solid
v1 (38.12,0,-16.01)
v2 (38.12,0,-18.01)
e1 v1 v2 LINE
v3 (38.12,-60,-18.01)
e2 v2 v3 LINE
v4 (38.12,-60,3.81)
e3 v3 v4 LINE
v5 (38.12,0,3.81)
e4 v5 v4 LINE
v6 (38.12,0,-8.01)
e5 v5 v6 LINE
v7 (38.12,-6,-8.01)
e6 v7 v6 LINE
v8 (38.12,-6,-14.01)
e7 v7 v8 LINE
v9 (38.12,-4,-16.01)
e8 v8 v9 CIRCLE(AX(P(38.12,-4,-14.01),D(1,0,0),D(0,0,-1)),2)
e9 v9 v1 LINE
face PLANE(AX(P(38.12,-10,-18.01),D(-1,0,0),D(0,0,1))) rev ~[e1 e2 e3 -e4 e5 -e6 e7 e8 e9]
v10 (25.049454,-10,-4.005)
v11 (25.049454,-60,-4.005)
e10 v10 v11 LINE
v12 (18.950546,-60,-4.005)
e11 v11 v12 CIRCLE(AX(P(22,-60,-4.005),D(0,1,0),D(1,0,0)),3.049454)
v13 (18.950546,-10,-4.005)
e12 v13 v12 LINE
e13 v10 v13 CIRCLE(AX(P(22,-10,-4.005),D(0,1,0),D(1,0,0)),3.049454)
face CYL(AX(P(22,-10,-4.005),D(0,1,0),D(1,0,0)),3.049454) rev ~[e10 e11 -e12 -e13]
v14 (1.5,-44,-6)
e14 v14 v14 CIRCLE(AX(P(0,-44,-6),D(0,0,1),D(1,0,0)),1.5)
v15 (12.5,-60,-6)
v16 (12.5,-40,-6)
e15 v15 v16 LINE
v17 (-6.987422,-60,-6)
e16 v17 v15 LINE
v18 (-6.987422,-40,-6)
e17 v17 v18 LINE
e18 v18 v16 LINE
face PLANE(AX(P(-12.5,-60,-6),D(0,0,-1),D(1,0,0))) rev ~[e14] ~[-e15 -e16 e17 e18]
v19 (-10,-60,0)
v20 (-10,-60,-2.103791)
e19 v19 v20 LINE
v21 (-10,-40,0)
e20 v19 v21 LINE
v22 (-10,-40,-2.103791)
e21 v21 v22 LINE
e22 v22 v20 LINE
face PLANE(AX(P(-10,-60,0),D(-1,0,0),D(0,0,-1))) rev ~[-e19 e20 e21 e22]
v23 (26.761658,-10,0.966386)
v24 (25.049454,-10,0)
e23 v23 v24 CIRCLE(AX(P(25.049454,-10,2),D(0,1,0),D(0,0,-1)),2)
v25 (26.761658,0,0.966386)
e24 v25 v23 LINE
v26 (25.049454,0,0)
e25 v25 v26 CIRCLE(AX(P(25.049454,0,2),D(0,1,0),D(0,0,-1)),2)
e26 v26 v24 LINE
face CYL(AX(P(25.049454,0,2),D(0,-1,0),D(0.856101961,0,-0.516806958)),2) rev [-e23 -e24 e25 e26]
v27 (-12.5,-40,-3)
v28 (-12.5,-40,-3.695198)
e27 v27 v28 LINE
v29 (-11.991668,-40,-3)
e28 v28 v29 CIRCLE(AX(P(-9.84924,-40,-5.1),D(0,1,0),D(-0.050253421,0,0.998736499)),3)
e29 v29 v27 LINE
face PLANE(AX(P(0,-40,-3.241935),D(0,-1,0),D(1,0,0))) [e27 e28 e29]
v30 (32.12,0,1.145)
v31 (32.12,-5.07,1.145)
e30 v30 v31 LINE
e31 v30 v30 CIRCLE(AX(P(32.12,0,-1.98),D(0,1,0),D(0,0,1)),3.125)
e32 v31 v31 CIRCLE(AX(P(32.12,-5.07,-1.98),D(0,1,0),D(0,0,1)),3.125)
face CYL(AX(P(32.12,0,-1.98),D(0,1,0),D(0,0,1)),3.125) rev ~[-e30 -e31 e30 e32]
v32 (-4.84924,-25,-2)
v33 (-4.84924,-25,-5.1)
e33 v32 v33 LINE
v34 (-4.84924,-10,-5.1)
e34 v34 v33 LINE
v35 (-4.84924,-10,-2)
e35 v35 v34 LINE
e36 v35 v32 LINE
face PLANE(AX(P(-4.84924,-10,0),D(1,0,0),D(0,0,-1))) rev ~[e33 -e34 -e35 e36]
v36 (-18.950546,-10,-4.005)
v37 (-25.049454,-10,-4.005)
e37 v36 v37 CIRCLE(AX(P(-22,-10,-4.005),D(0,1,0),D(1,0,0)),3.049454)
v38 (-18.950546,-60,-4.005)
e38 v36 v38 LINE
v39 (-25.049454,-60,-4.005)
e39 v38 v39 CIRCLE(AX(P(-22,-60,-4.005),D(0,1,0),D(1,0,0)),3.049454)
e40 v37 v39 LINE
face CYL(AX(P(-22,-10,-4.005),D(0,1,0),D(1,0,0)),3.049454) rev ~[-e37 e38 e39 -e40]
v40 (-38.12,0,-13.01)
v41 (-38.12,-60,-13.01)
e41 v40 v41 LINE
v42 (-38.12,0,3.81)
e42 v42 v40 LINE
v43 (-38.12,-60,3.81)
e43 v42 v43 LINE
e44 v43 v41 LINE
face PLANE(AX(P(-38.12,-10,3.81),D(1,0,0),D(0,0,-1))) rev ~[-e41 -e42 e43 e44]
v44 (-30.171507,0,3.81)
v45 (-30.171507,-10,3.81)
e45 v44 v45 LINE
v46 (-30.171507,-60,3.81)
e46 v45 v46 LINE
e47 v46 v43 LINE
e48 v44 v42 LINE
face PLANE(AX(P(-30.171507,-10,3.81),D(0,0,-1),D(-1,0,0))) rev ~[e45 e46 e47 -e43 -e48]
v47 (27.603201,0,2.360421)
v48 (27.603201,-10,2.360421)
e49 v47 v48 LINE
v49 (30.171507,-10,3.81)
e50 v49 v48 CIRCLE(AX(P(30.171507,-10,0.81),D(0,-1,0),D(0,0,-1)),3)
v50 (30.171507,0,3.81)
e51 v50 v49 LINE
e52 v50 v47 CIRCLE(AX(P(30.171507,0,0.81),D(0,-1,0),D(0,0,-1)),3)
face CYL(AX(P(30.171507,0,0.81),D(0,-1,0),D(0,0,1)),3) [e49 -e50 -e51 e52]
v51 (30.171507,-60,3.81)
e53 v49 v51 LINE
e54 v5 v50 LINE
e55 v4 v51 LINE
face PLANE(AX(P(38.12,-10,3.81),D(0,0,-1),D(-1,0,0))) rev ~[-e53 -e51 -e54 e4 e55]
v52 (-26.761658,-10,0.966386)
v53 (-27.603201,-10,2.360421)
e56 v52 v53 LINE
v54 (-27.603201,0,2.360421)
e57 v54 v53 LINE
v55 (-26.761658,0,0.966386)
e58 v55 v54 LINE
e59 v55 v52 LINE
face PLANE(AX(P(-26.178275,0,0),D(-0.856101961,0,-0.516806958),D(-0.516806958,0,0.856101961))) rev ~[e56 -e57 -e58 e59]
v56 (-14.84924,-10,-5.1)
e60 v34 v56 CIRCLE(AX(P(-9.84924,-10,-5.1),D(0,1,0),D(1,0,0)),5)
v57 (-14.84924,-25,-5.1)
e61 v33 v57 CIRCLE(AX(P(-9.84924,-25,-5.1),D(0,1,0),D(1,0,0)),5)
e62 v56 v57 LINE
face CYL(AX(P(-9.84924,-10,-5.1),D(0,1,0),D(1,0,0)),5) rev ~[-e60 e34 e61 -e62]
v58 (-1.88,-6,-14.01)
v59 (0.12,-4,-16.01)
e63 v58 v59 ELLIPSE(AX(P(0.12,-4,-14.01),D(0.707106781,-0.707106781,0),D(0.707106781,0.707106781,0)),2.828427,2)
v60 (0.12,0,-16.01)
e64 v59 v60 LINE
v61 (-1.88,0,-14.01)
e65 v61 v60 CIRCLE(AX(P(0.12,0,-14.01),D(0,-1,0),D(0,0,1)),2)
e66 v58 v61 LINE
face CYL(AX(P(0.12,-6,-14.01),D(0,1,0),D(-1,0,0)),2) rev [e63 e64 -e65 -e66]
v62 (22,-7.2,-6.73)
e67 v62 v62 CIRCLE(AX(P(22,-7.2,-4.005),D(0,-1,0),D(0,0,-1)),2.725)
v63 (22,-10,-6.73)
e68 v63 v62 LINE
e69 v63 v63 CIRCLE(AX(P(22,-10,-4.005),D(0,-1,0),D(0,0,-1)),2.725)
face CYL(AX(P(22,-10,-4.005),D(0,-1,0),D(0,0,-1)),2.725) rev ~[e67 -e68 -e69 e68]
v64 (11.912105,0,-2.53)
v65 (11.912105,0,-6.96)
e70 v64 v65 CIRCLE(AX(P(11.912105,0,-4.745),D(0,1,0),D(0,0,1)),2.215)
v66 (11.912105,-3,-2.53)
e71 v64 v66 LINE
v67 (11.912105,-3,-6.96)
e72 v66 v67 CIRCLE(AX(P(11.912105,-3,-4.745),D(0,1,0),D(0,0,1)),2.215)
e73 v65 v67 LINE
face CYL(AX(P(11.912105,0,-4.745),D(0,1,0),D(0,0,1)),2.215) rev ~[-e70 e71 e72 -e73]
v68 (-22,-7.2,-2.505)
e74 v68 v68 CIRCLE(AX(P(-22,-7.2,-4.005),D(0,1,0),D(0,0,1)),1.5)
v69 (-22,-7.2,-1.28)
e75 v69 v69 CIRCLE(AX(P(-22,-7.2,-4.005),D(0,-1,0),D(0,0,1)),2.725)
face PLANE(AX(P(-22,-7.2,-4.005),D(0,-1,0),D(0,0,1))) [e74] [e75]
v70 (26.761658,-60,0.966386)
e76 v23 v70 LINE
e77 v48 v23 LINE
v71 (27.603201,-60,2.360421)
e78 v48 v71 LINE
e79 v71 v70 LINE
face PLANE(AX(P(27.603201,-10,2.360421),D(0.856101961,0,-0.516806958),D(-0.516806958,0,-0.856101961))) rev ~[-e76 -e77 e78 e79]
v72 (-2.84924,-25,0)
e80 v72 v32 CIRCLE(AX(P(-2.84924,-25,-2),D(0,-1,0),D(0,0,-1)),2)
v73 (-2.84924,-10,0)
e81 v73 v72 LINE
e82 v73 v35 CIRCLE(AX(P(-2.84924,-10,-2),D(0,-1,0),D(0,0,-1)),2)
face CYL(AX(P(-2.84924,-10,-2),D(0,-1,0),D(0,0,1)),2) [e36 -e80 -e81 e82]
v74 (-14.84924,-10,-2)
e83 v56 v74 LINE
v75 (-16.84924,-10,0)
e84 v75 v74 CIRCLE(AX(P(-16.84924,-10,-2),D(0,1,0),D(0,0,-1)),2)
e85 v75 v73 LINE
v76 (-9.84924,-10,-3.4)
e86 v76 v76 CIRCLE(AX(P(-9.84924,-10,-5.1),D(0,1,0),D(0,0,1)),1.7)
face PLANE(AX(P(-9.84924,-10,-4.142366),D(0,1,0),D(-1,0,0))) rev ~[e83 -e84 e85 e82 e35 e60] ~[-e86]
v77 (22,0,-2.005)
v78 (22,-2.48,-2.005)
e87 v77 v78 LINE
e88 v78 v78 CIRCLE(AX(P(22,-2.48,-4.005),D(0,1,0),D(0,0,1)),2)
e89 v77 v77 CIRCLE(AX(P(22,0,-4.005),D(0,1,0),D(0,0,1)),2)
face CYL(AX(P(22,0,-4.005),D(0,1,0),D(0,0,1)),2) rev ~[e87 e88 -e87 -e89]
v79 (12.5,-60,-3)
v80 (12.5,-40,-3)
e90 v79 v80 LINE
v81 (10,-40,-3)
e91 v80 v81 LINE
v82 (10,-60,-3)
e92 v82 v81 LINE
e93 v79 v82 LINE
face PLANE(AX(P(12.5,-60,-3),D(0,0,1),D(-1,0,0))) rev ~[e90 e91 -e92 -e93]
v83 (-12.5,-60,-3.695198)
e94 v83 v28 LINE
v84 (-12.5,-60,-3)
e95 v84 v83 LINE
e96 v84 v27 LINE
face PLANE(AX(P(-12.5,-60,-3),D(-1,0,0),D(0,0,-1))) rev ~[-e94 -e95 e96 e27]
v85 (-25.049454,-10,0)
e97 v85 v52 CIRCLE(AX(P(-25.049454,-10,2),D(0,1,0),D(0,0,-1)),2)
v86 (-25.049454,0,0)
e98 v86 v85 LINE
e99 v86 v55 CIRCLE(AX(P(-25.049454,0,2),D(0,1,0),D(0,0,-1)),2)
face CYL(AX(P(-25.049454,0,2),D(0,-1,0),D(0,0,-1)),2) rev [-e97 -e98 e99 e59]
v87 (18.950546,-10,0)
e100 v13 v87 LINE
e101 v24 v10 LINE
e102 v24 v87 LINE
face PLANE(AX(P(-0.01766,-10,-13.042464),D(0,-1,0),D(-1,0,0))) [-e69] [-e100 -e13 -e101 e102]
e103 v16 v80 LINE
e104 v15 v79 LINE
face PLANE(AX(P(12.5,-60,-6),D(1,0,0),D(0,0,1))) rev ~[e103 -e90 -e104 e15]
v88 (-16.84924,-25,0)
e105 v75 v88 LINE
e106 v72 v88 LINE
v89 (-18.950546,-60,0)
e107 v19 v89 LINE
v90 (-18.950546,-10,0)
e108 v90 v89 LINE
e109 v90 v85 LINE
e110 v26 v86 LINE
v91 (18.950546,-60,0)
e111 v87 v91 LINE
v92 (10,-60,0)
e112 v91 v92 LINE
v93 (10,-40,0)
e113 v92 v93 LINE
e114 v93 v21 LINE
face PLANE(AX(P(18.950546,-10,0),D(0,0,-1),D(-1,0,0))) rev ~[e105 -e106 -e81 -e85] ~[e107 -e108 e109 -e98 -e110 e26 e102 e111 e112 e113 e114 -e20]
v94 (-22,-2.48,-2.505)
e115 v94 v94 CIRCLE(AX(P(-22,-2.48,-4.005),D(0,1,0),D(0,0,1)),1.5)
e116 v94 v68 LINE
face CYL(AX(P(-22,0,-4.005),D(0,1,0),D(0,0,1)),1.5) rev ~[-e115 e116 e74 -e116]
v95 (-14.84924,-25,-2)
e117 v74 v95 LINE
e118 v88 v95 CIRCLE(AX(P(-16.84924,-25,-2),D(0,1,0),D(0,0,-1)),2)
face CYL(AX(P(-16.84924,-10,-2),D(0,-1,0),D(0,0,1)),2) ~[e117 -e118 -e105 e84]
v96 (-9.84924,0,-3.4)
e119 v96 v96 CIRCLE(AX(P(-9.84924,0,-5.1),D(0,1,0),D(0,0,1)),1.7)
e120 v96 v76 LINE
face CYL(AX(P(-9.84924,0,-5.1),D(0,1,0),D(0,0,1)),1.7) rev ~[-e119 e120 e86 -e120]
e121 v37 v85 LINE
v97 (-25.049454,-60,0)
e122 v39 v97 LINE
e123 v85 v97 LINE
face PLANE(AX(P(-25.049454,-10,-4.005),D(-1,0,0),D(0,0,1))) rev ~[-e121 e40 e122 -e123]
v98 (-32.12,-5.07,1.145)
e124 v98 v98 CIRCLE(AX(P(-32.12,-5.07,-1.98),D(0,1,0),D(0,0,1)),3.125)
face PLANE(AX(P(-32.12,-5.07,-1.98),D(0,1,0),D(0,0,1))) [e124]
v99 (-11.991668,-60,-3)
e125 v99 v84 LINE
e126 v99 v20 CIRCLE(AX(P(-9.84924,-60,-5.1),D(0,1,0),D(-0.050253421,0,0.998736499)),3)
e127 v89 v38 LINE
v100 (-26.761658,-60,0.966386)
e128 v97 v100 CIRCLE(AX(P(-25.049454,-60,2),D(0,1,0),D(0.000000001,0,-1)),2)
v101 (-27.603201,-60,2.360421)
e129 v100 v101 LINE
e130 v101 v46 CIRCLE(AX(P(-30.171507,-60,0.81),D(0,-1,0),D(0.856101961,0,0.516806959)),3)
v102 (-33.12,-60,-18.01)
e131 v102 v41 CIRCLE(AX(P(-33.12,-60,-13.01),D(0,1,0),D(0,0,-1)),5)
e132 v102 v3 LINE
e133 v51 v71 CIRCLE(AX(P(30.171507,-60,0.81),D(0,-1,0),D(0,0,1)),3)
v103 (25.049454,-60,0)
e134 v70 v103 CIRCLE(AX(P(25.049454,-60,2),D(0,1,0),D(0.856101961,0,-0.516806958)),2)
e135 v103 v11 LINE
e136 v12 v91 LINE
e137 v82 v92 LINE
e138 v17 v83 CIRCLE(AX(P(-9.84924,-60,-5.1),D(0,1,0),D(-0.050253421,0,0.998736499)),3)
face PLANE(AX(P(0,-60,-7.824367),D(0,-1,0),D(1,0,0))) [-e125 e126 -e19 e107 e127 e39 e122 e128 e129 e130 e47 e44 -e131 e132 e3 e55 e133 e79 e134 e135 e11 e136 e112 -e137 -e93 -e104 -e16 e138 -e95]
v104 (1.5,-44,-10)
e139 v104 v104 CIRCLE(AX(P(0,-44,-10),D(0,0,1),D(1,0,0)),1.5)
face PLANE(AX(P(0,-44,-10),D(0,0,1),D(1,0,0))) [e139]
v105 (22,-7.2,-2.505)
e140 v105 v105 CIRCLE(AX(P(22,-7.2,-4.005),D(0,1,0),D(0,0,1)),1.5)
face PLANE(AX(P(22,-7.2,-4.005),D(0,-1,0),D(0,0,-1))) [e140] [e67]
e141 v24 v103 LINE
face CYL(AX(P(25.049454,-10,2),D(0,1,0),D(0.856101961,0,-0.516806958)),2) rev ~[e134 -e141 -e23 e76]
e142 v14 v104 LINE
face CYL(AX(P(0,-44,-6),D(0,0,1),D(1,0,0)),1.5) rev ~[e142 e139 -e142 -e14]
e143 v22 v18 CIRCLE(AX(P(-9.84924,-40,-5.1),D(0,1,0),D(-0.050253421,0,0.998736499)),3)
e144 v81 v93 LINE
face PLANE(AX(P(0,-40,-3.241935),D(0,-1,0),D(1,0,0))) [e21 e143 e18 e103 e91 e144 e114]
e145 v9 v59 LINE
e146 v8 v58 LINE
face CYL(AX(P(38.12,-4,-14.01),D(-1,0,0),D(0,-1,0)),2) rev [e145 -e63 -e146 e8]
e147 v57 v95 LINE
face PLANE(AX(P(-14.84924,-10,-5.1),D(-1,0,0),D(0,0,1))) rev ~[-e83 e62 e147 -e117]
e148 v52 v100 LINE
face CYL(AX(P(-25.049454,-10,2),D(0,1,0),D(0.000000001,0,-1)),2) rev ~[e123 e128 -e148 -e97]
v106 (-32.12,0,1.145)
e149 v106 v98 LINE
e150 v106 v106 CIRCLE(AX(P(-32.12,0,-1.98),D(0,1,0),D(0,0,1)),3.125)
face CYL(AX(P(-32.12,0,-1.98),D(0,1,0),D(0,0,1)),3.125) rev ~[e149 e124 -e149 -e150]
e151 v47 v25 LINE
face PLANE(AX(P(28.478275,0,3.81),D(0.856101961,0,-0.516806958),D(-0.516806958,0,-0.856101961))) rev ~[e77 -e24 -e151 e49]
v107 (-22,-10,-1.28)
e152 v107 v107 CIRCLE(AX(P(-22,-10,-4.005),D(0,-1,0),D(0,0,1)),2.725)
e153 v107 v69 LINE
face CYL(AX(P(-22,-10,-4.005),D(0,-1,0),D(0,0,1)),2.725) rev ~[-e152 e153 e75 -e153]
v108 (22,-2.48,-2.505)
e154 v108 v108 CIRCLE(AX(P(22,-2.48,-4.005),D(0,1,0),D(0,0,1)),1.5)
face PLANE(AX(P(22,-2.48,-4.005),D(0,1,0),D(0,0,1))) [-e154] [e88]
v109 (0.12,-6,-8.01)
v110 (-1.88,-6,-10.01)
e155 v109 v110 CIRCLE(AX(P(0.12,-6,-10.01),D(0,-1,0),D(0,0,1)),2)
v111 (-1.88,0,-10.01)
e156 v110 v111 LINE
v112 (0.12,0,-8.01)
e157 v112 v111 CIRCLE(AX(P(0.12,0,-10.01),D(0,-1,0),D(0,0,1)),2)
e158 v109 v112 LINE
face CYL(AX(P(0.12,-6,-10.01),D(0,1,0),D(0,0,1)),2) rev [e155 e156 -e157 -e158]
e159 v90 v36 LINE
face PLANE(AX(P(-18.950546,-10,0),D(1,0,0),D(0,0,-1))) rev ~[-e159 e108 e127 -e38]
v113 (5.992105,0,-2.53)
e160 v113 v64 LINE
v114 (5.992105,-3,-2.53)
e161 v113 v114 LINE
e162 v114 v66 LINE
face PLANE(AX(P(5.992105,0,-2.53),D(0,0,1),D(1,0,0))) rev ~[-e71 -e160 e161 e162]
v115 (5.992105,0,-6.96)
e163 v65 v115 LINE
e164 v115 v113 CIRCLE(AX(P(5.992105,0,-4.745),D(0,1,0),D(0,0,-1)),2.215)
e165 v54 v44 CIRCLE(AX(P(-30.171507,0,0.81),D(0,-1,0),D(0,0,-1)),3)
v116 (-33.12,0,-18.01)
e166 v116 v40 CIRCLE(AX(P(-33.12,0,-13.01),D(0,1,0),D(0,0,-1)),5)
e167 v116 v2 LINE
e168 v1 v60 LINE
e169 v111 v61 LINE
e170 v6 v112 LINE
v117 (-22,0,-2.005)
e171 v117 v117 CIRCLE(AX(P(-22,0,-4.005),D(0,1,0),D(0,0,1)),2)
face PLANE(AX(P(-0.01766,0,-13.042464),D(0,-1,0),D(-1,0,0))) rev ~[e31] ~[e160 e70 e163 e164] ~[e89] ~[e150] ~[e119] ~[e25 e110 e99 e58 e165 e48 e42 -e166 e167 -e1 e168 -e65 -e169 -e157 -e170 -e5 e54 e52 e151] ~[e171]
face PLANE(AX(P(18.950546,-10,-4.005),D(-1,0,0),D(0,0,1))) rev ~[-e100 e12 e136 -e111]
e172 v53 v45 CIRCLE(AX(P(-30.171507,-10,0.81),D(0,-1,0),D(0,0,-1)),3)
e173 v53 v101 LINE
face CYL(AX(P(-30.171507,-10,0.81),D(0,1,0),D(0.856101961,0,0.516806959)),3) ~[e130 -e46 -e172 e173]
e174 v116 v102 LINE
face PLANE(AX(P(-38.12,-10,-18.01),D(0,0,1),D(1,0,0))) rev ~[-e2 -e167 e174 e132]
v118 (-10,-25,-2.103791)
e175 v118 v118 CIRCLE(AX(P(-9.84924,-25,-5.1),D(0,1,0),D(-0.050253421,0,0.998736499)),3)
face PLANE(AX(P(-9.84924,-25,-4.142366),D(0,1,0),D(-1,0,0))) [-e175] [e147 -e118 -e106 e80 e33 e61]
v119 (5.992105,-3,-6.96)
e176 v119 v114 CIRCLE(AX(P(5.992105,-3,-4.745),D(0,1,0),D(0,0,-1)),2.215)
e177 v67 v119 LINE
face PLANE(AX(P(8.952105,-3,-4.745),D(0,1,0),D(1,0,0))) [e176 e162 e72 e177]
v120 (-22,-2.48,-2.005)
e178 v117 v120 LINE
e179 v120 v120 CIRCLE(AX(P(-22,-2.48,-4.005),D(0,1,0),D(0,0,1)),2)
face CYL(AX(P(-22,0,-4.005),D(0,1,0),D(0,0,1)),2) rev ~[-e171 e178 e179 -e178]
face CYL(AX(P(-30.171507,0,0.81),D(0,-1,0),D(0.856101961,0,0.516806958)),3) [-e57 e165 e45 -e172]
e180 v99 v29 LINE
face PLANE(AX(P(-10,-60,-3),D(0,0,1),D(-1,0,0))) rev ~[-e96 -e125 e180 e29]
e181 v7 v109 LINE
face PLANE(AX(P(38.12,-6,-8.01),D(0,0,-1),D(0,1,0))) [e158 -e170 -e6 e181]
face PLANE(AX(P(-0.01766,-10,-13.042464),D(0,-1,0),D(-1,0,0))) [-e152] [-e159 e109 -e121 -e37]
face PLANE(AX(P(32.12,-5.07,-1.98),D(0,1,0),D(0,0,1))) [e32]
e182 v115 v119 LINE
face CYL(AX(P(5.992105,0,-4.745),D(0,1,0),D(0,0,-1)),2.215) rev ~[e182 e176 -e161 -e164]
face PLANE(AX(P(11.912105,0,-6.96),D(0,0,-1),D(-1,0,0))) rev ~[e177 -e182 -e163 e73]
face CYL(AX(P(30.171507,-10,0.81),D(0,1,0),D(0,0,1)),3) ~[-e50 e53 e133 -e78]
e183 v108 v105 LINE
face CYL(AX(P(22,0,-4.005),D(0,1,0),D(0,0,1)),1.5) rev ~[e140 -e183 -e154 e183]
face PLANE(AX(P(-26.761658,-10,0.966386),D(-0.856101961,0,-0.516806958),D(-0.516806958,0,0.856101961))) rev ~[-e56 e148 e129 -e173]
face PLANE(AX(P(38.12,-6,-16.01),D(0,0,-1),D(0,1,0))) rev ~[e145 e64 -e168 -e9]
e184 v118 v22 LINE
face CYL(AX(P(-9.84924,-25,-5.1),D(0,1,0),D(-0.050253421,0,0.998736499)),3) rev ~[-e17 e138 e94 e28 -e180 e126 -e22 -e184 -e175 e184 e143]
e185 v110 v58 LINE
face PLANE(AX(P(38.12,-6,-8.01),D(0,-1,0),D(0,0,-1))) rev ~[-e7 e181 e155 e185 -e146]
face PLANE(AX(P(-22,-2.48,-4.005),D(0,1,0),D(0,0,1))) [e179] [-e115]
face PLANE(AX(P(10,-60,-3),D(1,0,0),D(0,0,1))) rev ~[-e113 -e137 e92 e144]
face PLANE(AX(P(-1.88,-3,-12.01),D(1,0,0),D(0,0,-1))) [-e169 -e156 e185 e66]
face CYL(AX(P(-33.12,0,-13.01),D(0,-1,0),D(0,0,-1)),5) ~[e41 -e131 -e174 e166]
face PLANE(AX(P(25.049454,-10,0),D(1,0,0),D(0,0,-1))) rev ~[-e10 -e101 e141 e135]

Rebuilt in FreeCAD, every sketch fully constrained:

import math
import FreeCAD as App
import Part
import Sketcher

V = App.Vector
Q = App.Units.Quantity


def edges_at(feature, points):
    """Names of the edges that pass closest to the given points."""
    edges = feature.Shape.Edges
    near = lambda p: min(range(len(edges)), key=lambda i: edges[i].distToShape(Part.Vertex(*p))[0])
    return sorted({f"Edge{near(p) + 1}" for p in points})

doc = App.newDocument("Part")
body = doc.addObject("PartDesign::Body", "Body")

sketch1 = doc.addObject("Sketcher::SketchObject", "Sketch")
body.addObject(sketch1)
sketch1.AttachmentSupport = (doc.XZ_Plane, [""])
sketch1.MapMode = "FlatFace"
sketch1.addGeometry(Part.ArcOfCircle(Part.Circle(V(-9.8, -5.1, 0), V(0, 0, 1), 4.2), math.radians(-112), math.radians(-68)), False)
sketch1.addGeometry(Part.ArcOfCircle(Part.Circle(V(-16.4, -21.4, 0), V(0, 0, 1), 13.4), math.radians(68), math.radians(90)), False)
sketch1.addGeometry(Part.LineSegment(V(-16.4, -8, 0), V(-38.1, -8, 0)), False)
sketch1.addGeometry(Part.LineSegment(V(-38.1, -8, 0), V(-38.1, 3.8, 0)), False)
sketch1.addGeometry(Part.LineSegment(V(-38.1, 3.8, 0), V(-28.5, 3.8, 0)), False)
sketch1.addGeometry(Part.LineSegment(V(-28.5, 3.8, 0), V(-26.2, 0, 0)), False)
sketch1.addGeometry(Part.LineSegment(V(-26.2, 0, 0), V(26.2, 0, 0)), False)
sketch1.addGeometry(Part.LineSegment(V(26.2, 0, 0), V(28.5, 3.8, 0)), False)
sketch1.addGeometry(Part.LineSegment(V(28.5, 3.8, 0), V(38.1, 3.8, 0)), False)
sketch1.addGeometry(Part.LineSegment(V(38.1, 3.8, 0), V(38.1, -8, 0)), False)
sketch1.addGeometry(Part.LineSegment(V(38.1, -8, 0), V(-3.3, -8, 0)), False)
sketch1.addGeometry(Part.ArcOfCircle(Part.Circle(V(-3.3, -21.4, 0), V(0, 0, 1), 13.4), math.radians(90), math.radians(112)), False)
sketch1.addConstraint(Sketcher.Constraint("Tangent", 0, 1, 1, 1))
sketch1.addConstraint(Sketcher.Constraint("Tangent", 1, 2, 2, 1))
sketch1.addConstraint(Sketcher.Constraint("Coincident", 2, 2, 3, 1))
sketch1.addConstraint(Sketcher.Constraint("Coincident", 3, 2, 4, 1))
sketch1.addConstraint(Sketcher.Constraint("Coincident", 4, 2, 5, 1))
sketch1.addConstraint(Sketcher.Constraint("Coincident", 5, 2, 6, 1))
sketch1.addConstraint(Sketcher.Constraint("Coincident", 6, 2, 7, 1))
sketch1.addConstraint(Sketcher.Constraint("Coincident", 7, 2, 8, 1))
sketch1.addConstraint(Sketcher.Constraint("Coincident", 8, 2, 9, 1))
sketch1.addConstraint(Sketcher.Constraint("Coincident", 9, 2, 10, 1))
sketch1.addConstraint(Sketcher.Constraint("Tangent", 10, 2, 11, 1))
sketch1.addConstraint(Sketcher.Constraint("Tangent", 11, 2, 0, 2))
sketch1.addConstraint(Sketcher.Constraint("Horizontal", 2))
sketch1.addConstraint(Sketcher.Constraint("Vertical", 3))
sketch1.addConstraint(Sketcher.Constraint("Horizontal", 4))
sketch1.addConstraint(Sketcher.Constraint("Horizontal", 6))
sketch1.addConstraint(Sketcher.Constraint("Horizontal", 8))
sketch1.addConstraint(Sketcher.Constraint("Vertical", 9))
sketch1.addConstraint(Sketcher.Constraint("Horizontal", 10))
sketch1.addConstraint(Sketcher.Constraint("Equal", 1, 11))
sketch1.addConstraint(Sketcher.Constraint("Symmetric", 5, 2, 6, 2, -1, 1))
sketch1.addConstraint(Sketcher.Constraint("Symmetric", 4, 2, 7, 2, -2))
sketch1.addConstraint(Sketcher.Constraint("Symmetric", 2, 2, 9, 2, -2))
sketch1.addConstraint(Sketcher.Constraint("Radius", 0, Q("4.18 mm")))
sketch1.addConstraint(Sketcher.Constraint("DistanceX", 1, 3, 0, 1, Q("5 mm")))
sketch1.addConstraint(Sketcher.Constraint("DistanceY", 3, 1, 3, 2, Q("11.82 mm")))
sketch1.addConstraint(Sketcher.Constraint("DistanceY", 0, 3, -1, 1, Q("5.1 mm")))
sketch1.addConstraint(Sketcher.Constraint("DistanceX", 4, 2, 5, 2, Q("2.3 mm")))
sketch1.addConstraint(Sketcher.Constraint("DistanceY", 1, 2, -1, 1, Q("8.01 mm")))
sketch1.addConstraint(Sketcher.Constraint("DistanceX", 2, 2, -1, 1, Q("38.12 mm")))
sketch1.addConstraint(Sketcher.Constraint("DistanceX", 6, 1, 6, 2, Q("52.35655 mm")))
sketch1.addConstraint(Sketcher.Constraint("DistanceX", 2, 2, 2, 1, Q("21.710755 mm")))
pad1 = doc.addObject("PartDesign::Pad", "Pad")
body.addObject(pad1)
pad1.Profile = sketch1
pad1.Length = 10
doc.recompute()

fillet = doc.addObject("PartDesign::Fillet", "Fillet")
body.addObject(fillet)
fillet.Base = (pad1, edges_at(pad1, [(28.478, -5, 3.81), (-28.478, -5, 3.81)]))
fillet.Radius = 3
doc.recompute()

fillet2 = doc.addObject("PartDesign::Fillet", "Fillet001")
body.addObject(fillet2)
fillet2.Base = (fillet, edges_at(fillet, [(26.178, -5, 0), (-26.178, -5, 0)]))
fillet2.Radius = 2

sketch2 = doc.addObject("Sketcher::SketchObject", "Sketch001")
body.addObject(sketch2)
sketch2.AttachmentSupport = (doc.XZ_Plane, [""])
sketch2.MapMode = "FlatFace"
sketch2.addGeometry(Part.Circle(V(32.1, -2, 0), V(0, 0, 1), 3.1), False)
sketch2.addGeometry(Part.Circle(V(-32.1, -2, 0), V(0, 0, 1), 3.1), False)
sketch2.addConstraint(Sketcher.Constraint("Equal", 0, 1))
sketch2.addConstraint(Sketcher.Constraint("Symmetric", 0, 3, 1, 3, -2))
sketch2.addConstraint(Sketcher.Constraint("Diameter", 0, Q("6.25 mm")))
sketch2.addConstraint(Sketcher.Constraint("DistanceX", -1, 1, 0, 3, Q("32.12 mm")))
sketch2.addConstraint(Sketcher.Constraint("DistanceY", 0, 3, -1, 1, Q("1.98 mm")))
pocket1 = doc.addObject("PartDesign::Pocket", "Pocket")
body.addObject(pocket1)
pocket1.Profile = sketch2
pocket1.Length = 5.07
pocket1.Reversed = True

sketch3 = doc.addObject("Sketcher::SketchObject", "Sketch002")
body.addObject(sketch3)
sketch3.AttachmentSupport = (doc.XZ_Plane, [""])
sketch3.MapMode = "FlatFace"
sketch3.addGeometry(Part.Circle(V(-9.8, -5.1, 0), V(0, 0, 1), 1.7), False)
sketch3.addConstraint(Sketcher.Constraint("Diameter", 0, Q("3.4 mm")))
sketch3.addConstraint(Sketcher.Constraint("DistanceY", 0, 3, -1, 1, Q("5.1 mm")))
sketch3.addConstraint(Sketcher.Constraint("DistanceX", 0, 3, -1, 1, Q("9.84924 mm")))
pocket2 = doc.addObject("PartDesign::Pocket", "Pocket001")
body.addObject(pocket2)
pocket2.Profile = sketch3
pocket2.Length = 10
pocket2.Reversed = True

sketch4 = doc.addObject("Sketcher::SketchObject", "Sketch003")
body.addObject(sketch4)
sketch4.AttachmentSupport = (doc.XZ_Plane, [""])
sketch4.MapMode = "FlatFace"
sketch4.addGeometry(Part.LineSegment(V(6, -2.5, 0), V(11.9, -2.5, 0)), False)
sketch4.addGeometry(Part.ArcOfCircle(Part.Circle(V(11.9, -4.7, 0), V(0, 0, 1), 2.2), math.radians(-90), math.radians(90)), False)
sketch4.addGeometry(Part.LineSegment(V(11.9, -7, 0), V(6, -7, 0)), False)
sketch4.addGeometry(Part.ArcOfCircle(Part.Circle(V(6, -4.7, 0), V(0, 0, 1), 2.2), math.radians(90), math.radians(270)), False)
sketch4.addConstraint(Sketcher.Constraint("Tangent", 0, 2, 1, 2))
sketch4.addConstraint(Sketcher.Constraint("Tangent", 1, 1, 2, 1))
sketch4.addConstraint(Sketcher.Constraint("Tangent", 2, 2, 3, 2))
sketch4.addConstraint(Sketcher.Constraint("Tangent", 3, 1, 0, 1))
sketch4.addConstraint(Sketcher.Constraint("Horizontal", 0))
sketch4.addConstraint(Sketcher.Constraint("Horizontal", 2))
sketch4.addConstraint(Sketcher.Constraint("Radius", 1, Q("2.215 mm")))
sketch4.addConstraint(Sketcher.Constraint("DistanceX", 0, 1, 0, 2, Q("5.92 mm")))
sketch4.addConstraint(Sketcher.Constraint("DistanceY", 0, 2, -1, 1, Q("2.53 mm")))
sketch4.addConstraint(Sketcher.Constraint("DistanceX", -1, 1, 1, 3, Q("11.912105 mm")))
pocket3 = doc.addObject("PartDesign::Pocket", "Pocket002")
body.addObject(pocket3)
pocket3.Profile = sketch4
pocket3.Length = 3
pocket3.Reversed = True

sketch5 = doc.addObject("Sketcher::SketchObject", "Sketch004")
body.addObject(sketch5)
sketch5.AttachmentSupport = (doc.XZ_Plane, [""])
sketch5.MapMode = "FlatFace"
sketch5.addGeometry(Part.Circle(V(-22, -4, 0), V(0, 0, 1), 2), False)
sketch5.addGeometry(Part.Circle(V(22, -4, 0), V(0, 0, 1), 2), False)
sketch5.addConstraint(Sketcher.Constraint("Equal", 0, 1))
sketch5.addConstraint(Sketcher.Constraint("Symmetric", 0, 3, 1, 3, -2))
sketch5.addConstraint(Sketcher.Constraint("Diameter", 0, Q("4 mm")))
sketch5.addConstraint(Sketcher.Constraint("DistanceX", 0, 3, -1, 1, Q("22 mm")))
sketch5.addConstraint(Sketcher.Constraint("DistanceY", 0, 3, -1, 1, Q("4.005 mm")))
pocket4 = doc.addObject("PartDesign::Pocket", "Pocket003")
body.addObject(pocket4)
pocket4.Profile = sketch5
pocket4.Length = 2.48
pocket4.Reversed = True

sketch6 = doc.addObject("Sketcher::SketchObject", "Sketch005")
body.addObject(sketch6)
sketch6.AttachmentSupport = (doc.XZ_Plane, [""])
sketch6.MapMode = "FlatFace"
sketch6.addGeometry(Part.Circle(V(-22, -4, 0), V(0, 0, 1), 1.5), False)
sketch6.addGeometry(Part.Circle(V(22, -4, 0), V(0, 0, 1), 1.5), False)
sketch6.addConstraint(Sketcher.Constraint("Equal", 0, 1))
sketch6.addConstraint(Sketcher.Constraint("Symmetric", 0, 3, 1, 3, -2))
sketch6.addConstraint(Sketcher.Constraint("Diameter", 0, Q("3 mm")))
sketch6.addConstraint(Sketcher.Constraint("DistanceX", 0, 3, -1, 1, Q("22 mm")))
sketch6.addConstraint(Sketcher.Constraint("DistanceY", 0, 3, -1, 1, Q("4.005 mm")))
pocket5 = doc.addObject("PartDesign::Pocket", "Pocket004")
body.addObject(pocket5)
pocket5.Profile = sketch6
pocket5.Length = 10
pocket5.Reversed = True

sketch7 = doc.addObject("Sketcher::SketchObject", "Sketch006")
body.addObject(sketch7)
sketch7.AttachmentSupport = (doc.XZ_Plane, [""])
sketch7.MapMode = "FlatFace"
sketch7.AttachmentOffset = App.Placement(V(0, 0, 10), App.Rotation())
sketch7.addGeometry(Part.Circle(V(22, -4, 0), V(0, 0, 1), 2.7), False)
sketch7.addGeometry(Part.Circle(V(-22, -4, 0), V(0, 0, 1), 2.7), False)
sketch7.addConstraint(Sketcher.Constraint("Equal", 0, 1))
sketch7.addConstraint(Sketcher.Constraint("Symmetric", 0, 3, 1, 3, -2))
sketch7.addConstraint(Sketcher.Constraint("Diameter", 0, Q("5.45 mm")))
sketch7.addConstraint(Sketcher.Constraint("DistanceX", -1, 1, 0, 3, Q("22 mm")))
sketch7.addConstraint(Sketcher.Constraint("DistanceY", 0, 3, -1, 1, Q("4.005 mm")))
pocket6 = doc.addObject("PartDesign::Pocket", "Pocket005")
body.addObject(pocket6)
pocket6.Profile = sketch7
pocket6.Length = 2.8

sketch8 = doc.addObject("Sketcher::SketchObject", "Sketch007")
body.addObject(sketch8)
sketch8.AttachmentSupport = (doc.XZ_Plane, [""])
sketch8.MapMode = "FlatFace"
sketch8.addGeometry(Part.LineSegment(V(-38.1, -18, 0), V(-38.1, -8, 0)), False)
sketch8.addGeometry(Part.LineSegment(V(-38.1, -8, 0), V(-16.4, -8, 0)), False)
sketch8.addGeometry(Part.ArcOfCircle(Part.Circle(V(-16.4, -21.4, 0), V(0, 0, 1), 13.4), math.radians(68), math.radians(90)), False)
sketch8.addGeometry(Part.ArcOfCircle(Part.Circle(V(-9.8, -5.1, 0), V(0, 0, 1), 4.2), math.radians(-112), math.radians(-68)), False)
sketch8.addGeometry(Part.ArcOfCircle(Part.Circle(V(-3.3, -21.4, 0), V(0, 0, 1), 13.4), math.radians(90), math.radians(112)), False)
sketch8.addGeometry(Part.LineSegment(V(-3.3, -8, 0), V(38.1, -8, 0)), False)
sketch8.addGeometry(Part.LineSegment(V(38.1, -8, 0), V(38.1, -18, 0)), False)
sketch8.addGeometry(Part.LineSegment(V(38.1, -18, 0), V(-38.1, -18, 0)), False)
sketch8.addConstraint(Sketcher.Constraint("Coincident", 0, 2, 1, 1))
sketch8.addConstraint(Sketcher.Constraint("Tangent", 1, 2, 2, 2))
sketch8.addConstraint(Sketcher.Constraint("Tangent", 2, 1, 3, 1))
sketch8.addConstraint(Sketcher.Constraint("Tangent", 3, 2, 4, 2))
sketch8.addConstraint(Sketcher.Constraint("Tangent", 4, 1, 5, 1))
sketch8.addConstraint(Sketcher.Constraint("Coincident", 5, 2, 6, 1))
sketch8.addConstraint(Sketcher.Constraint("Coincident", 6, 2, 7, 1))
sketch8.addConstraint(Sketcher.Constraint("Coincident", 7, 2, 0, 1))
sketch8.addConstraint(Sketcher.Constraint("Vertical", 0))
sketch8.addConstraint(Sketcher.Constraint("Horizontal", 1))
sketch8.addConstraint(Sketcher.Constraint("Horizontal", 5))
sketch8.addConstraint(Sketcher.Constraint("Vertical", 6))
sketch8.addConstraint(Sketcher.Constraint("Horizontal", 7))
sketch8.addConstraint(Sketcher.Constraint("Equal", 2, 4))
sketch8.addConstraint(Sketcher.Constraint("Symmetric", 0, 2, 5, 2, -2))
sketch8.addConstraint(Sketcher.Constraint("DistanceY", 0, 1, 0, 2, Q("10 mm")))
sketch8.addConstraint(Sketcher.Constraint("Radius", 3, Q("4.18 mm")))
sketch8.addConstraint(Sketcher.Constraint("DistanceX", 1, 2, 2, 1, Q("5 mm")))
sketch8.addConstraint(Sketcher.Constraint("DistanceX", 7, 2, 7, 1, Q("76.24 mm")))
sketch8.addConstraint(Sketcher.Constraint("DistanceY", 3, 3, -1, 1, Q("5.1 mm")))
sketch8.addConstraint(Sketcher.Constraint("DistanceY", 0, 2, -1, 1, Q("8.01 mm")))
sketch8.addConstraint(Sketcher.Constraint("DistanceX", 1, 1, 1, 2, Q("21.710755 mm")))
pad2 = doc.addObject("PartDesign::Pad", "Pad001")
body.addObject(pad2)
pad2.Profile = sketch8
pad2.Length = 10

sketch9 = doc.addObject("Sketcher::SketchObject", "Sketch008")
body.addObject(sketch9)
sketch9.AttachmentSupport = (doc.XZ_Plane, [""])
sketch9.MapMode = "FlatFace"
sketch9.AttachmentOffset = App.Placement(V(0, 0, 10), App.Rotation())
sketch9.addGeometry(Part.LineSegment(V(19, 0, 0), V(-19, 0, 0)), False)
sketch9.addGeometry(Part.LineSegment(V(-19, 0, 0), V(-19, -4, 0)), False)
sketch9.addGeometry(Part.ArcOfCircle(Part.Circle(V(-22, -4, 0), V(0, 0, 1), 3), math.radians(180), math.radians(360)), False)
sketch9.addGeometry(Part.LineSegment(V(-25, -4, 0), V(-25, 0, 0)), False)
sketch9.addGeometry(Part.ArcOfCircle(Part.Circle(V(-25, 2, 0), V(0, 0, 1), 2), math.radians(-149), math.radians(-90)), False)
sketch9.addGeometry(Part.LineSegment(V(-26.8, 1, 0), V(-27.6, 2.4, 0)), False)
sketch9.addGeometry(Part.ArcOfCircle(Part.Circle(V(-30.2, 0.8, 0), V(0, 0, 1), 3), math.radians(31), math.radians(90)), False)
sketch9.addGeometry(Part.LineSegment(V(-30.2, 3.8, 0), V(-38.1, 3.8, 0)), False)
sketch9.addGeometry(Part.LineSegment(V(-38.1, 3.8, 0), V(-38.1, -18, 0)), False)
sketch9.addGeometry(Part.LineSegment(V(-38.1, -18, 0), V(38.1, -18, 0)), False)
sketch9.addGeometry(Part.LineSegment(V(38.1, -18, 0), V(38.1, 3.8, 0)), False)
sketch9.addGeometry(Part.LineSegment(V(38.1, 3.8, 0), V(30.2, 3.8, 0)), False)
sketch9.addGeometry(Part.ArcOfCircle(Part.Circle(V(30.2, 0.8, 0), V(0, 0, 1), 3), math.radians(90), math.radians(149)), False)
sketch9.addGeometry(Part.LineSegment(V(27.6, 2.4, 0), V(26.8, 1, 0)), False)
sketch9.addGeometry(Part.ArcOfCircle(Part.Circle(V(25, 2, 0), V(0, 0, 1), 2), math.radians(-90), math.radians(-31)), False)
sketch9.addGeometry(Part.LineSegment(V(25, 0, 0), V(25, -4, 0)), False)
sketch9.addGeometry(Part.ArcOfCircle(Part.Circle(V(22, -4, 0), V(0, 0, 1), 3), math.radians(180), math.radians(360)), False)
sketch9.addGeometry(Part.LineSegment(V(19, -4, 0), V(19, 0, 0)), False)
sketch9.addConstraint(Sketcher.Constraint("Coincident", 0, 2, 1, 1))
sketch9.addConstraint(Sketcher.Constraint("Tangent", 1, 2, 2, 2))
sketch9.addConstraint(Sketcher.Constraint("Tangent", 2, 1, 3, 1))
sketch9.addConstraint(Sketcher.Constraint("Coincident", 3, 2, 4, 2))
sketch9.addConstraint(Sketcher.Constraint("Tangent", 4, 1, 5, 1))
sketch9.addConstraint(Sketcher.Constraint("Tangent", 5, 2, 6, 1))
sketch9.addConstraint(Sketcher.Constraint("Tangent", 6, 2, 7, 1))
sketch9.addConstraint(Sketcher.Constraint("Coincident", 7, 2, 8, 1))
sketch9.addConstraint(Sketcher.Constraint("Coincident", 8, 2, 9, 1))
sketch9.addConstraint(Sketcher.Constraint("Coincident", 9, 2, 10, 1))
sketch9.addConstraint(Sketcher.Constraint("Coincident", 10, 2, 11, 1))
sketch9.addConstraint(Sketcher.Constraint("Tangent", 11, 2, 12, 1))
sketch9.addConstraint(Sketcher.Constraint("Tangent", 12, 2, 13, 1))
sketch9.addConstraint(Sketcher.Constraint("Tangent", 13, 2, 14, 2))
sketch9.addConstraint(Sketcher.Constraint("Coincident", 14, 1, 15, 1))
sketch9.addConstraint(Sketcher.Constraint("Tangent", 15, 2, 16, 2))
sketch9.addConstraint(Sketcher.Constraint("Tangent", 16, 1, 17, 1))
sketch9.addConstraint(Sketcher.Constraint("Coincident", 17, 2, 0, 1))
sketch9.addConstraint(Sketcher.Constraint("Horizontal", 0))
sketch9.addConstraint(Sketcher.Constraint("Vertical", 1))
sketch9.addConstraint(Sketcher.Constraint("Vertical", 3))
sketch9.addConstraint(Sketcher.Constraint("Horizontal", 7))
sketch9.addConstraint(Sketcher.Constraint("Vertical", 8))
sketch9.addConstraint(Sketcher.Constraint("Horizontal", 9))
sketch9.addConstraint(Sketcher.Constraint("Vertical", 10))
sketch9.addConstraint(Sketcher.Constraint("Horizontal", 11))
sketch9.addConstraint(Sketcher.Constraint("Vertical", 15))
sketch9.addConstraint(Sketcher.Constraint("Vertical", 17))
sketch9.addConstraint(Sketcher.Constraint("Equal", 6, 12))
sketch9.addConstraint(Sketcher.Constraint("Equal", 4, 14))
sketch9.addConstraint(Sketcher.Constraint("Equal", 2, 16))
sketch9.addConstraint(Sketcher.Constraint("Symmetric", 3, 2, 14, 1, -1, 1))
sketch9.addConstraint(Sketcher.Constraint("Symmetric", 6, 3, 12, 3, -2))
sketch9.addConstraint(Sketcher.Constraint("Symmetric", 4, 3, 14, 3, -2))
sketch9.addConstraint(Sketcher.Constraint("PointOnObject", 0, 2, -1))
sketch9.addConstraint(Sketcher.Constraint("Horizontal", 2, 3, 16, 3))
sketch9.addConstraint(Sketcher.Constraint("Vertical", 4, 3, 2, 1))
sketch9.addConstraint(Sketcher.Constraint("Equal", 7, 11))
sketch9.addConstraint(Sketcher.Constraint("Radius", 4, Q("2 mm")))
sketch9.addConstraint(Sketcher.Constraint("Radius", 6, Q("3 mm")))
sketch9.addConstraint(Sketcher.Constraint("DistanceX", 2, 3, -1, 1, Q("22 mm")))
sketch9.addConstraint(Sketcher.Constraint("DistanceX", 9, 1, 9, 2, Q("76.24 mm")))
sketch9.addConstraint(Sketcher.Constraint("DistanceY", 8, 2, 8, 1, Q("21.82 mm")))
sketch9.addConstraint(Sketcher.Constraint("DistanceY", 1, 2, 1, 1, Q("4.005 mm")))
sketch9.addConstraint(Sketcher.Constraint("DistanceY", -1, 1, 6, 3, Q("0.81 mm")))
sketch9.addConstraint(Sketcher.Constraint("Radius", 2, Q("3.049454 mm")))
sketch9.addConstraint(Sketcher.Constraint("DistanceX", 5, 2, -1, 1, Q("27.603201 mm")))
pad3 = doc.addObject("PartDesign::Pad", "Pad002")
body.addObject(pad3)
pad3.Profile = sketch9
pad3.Length = 50
doc.recompute()

fillet3 = doc.addObject("PartDesign::Fillet", "Fillet002")
body.addObject(fillet3)
fillet3.Base = (pad3, edges_at(pad3, [(-38.12, -30, -18.01)]))
fillet3.Radius = 5

sketch10 = doc.addObject("Sketcher::SketchObject", "Sketch009")
body.addObject(sketch10)
sketch10.AttachmentSupport = (doc.XZ_Plane, [""])
sketch10.MapMode = "FlatFace"
sketch10.AttachmentOffset = App.Placement(V(0, 0, 10), App.Rotation())
sketch10.addGeometry(Part.LineSegment(V(-5, -5, 0), V(-5, 0, 0)), False)
sketch10.addGeometry(Part.LineSegment(V(-5, 0, 0), V(-15, 0, 0)), False)
sketch10.addGeometry(Part.LineSegment(V(-15, 0, 0), V(-15, -5, 0)), False)
sketch10.addGeometry(Part.ArcOfCircle(Part.Circle(V(-10, -5, 0), V(0, 0, 1), 5), math.radians(180), math.radians(360)), False)
sketch10.addConstraint(Sketcher.Constraint("Coincident", 0, 2, 1, 1))
sketch10.addConstraint(Sketcher.Constraint("Coincident", 1, 2, 2, 1))
sketch10.addConstraint(Sketcher.Constraint("Tangent", 2, 2, 3, 1))
sketch10.addConstraint(Sketcher.Constraint("Tangent", 3, 2, 0, 1))
sketch10.addConstraint(Sketcher.Constraint("Vertical", 0))
sketch10.addConstraint(Sketcher.Constraint("Horizontal", 1))
sketch10.addConstraint(Sketcher.Constraint("Vertical", 2))
sketch10.addConstraint(Sketcher.Constraint("PointOnObject", 0, 2, -1))
sketch10.addConstraint(Sketcher.Constraint("Radius", 3, Q("5 mm")))
sketch10.addConstraint(Sketcher.Constraint("DistanceY", 0, 1, 0, 2, Q("5.1 mm")))
sketch10.addConstraint(Sketcher.Constraint("DistanceX", 3, 3, -1, 1, Q("9.84924 mm")))
pocket7 = doc.addObject("PartDesign::Pocket", "Pocket006")
body.addObject(pocket7)
pocket7.Profile = sketch10
pocket7.Length = 15
pocket7.Reversed = True

sketch11 = doc.addObject("Sketcher::SketchObject", "Sketch010")
body.addObject(sketch11)
sketch11.AttachmentSupport = (doc.YZ_Plane, [""])
sketch11.MapMode = "FlatFace"
sketch11.AttachmentOffset = App.Placement(V(0, 0, 38.12), App.Rotation())
sketch11.addGeometry(Part.LineSegment(V(0, -8, 0), V(-6, -8, 0)), False)
sketch11.addGeometry(Part.LineSegment(V(-6, -8, 0), V(-6, -16, 0)), False)
sketch11.addGeometry(Part.LineSegment(V(-6, -16, 0), V(0, -16, 0)), False)
sketch11.addGeometry(Part.LineSegment(V(0, -16, 0), V(0, -8, 0)), False)
sketch11.addConstraint(Sketcher.Constraint("Coincident", 0, 2, 1, 1))
sketch11.addConstraint(Sketcher.Constraint("Coincident", 1, 2, 2, 1))
sketch11.addConstraint(Sketcher.Constraint("Coincident", 2, 2, 3, 1))
sketch11.addConstraint(Sketcher.Constraint("Coincident", 3, 2, 0, 1))
sketch11.addConstraint(Sketcher.Constraint("Horizontal", 0))
sketch11.addConstraint(Sketcher.Constraint("Vertical", 1))
sketch11.addConstraint(Sketcher.Constraint("Horizontal", 2))
sketch11.addConstraint(Sketcher.Constraint("Vertical", 3))
sketch11.addConstraint(Sketcher.Constraint("PointOnObject", 2, 2, -2))
sketch11.addConstraint(Sketcher.Constraint("DistanceX", 0, 2, 0, 1, Q("6 mm")))
sketch11.addConstraint(Sketcher.Constraint("DistanceY", 1, 2, 1, 1, Q("8 mm")))
sketch11.addConstraint(Sketcher.Constraint("DistanceY", 0, 2, -1, 1, Q("8.01 mm")))
pocket8 = doc.addObject("PartDesign::Pocket", "Pocket007")
body.addObject(pocket8)
pocket8.Profile = sketch11
pocket8.Length = 40
doc.recompute()

fillet4 = doc.addObject("PartDesign::Fillet", "Fillet003")
body.addObject(fillet4)
fillet4.Base = (pocket8, edges_at(pocket8, [(-4.849, -17.5, 0), (-14.849, -17.5, 0)]))
fillet4.Radius = 2
doc.recompute()

fillet5 = doc.addObject("PartDesign::Fillet", "Fillet004")
body.addObject(fillet5)
fillet5.Base = (fillet4, edges_at(fillet4, [(-1.88, -3, -16.01), (18.12, -6, -16.01), (-1.88, -3, -8.01)]))
fillet5.Radius = 2

sketch12 = doc.addObject("Sketcher::SketchObject", "Sketch011")
body.addObject(sketch12)
sketch12.AttachmentSupport = (doc.XZ_Plane, [""])
sketch12.MapMode = "FlatFace"
sketch12.AttachmentOffset = App.Placement(V(0, 0, 60), App.Rotation())
sketch12.addGeometry(Part.LineSegment(V(-10, 0, 0), V(-10, -3, 0)), False)
sketch12.addGeometry(Part.LineSegment(V(-10, -3, 0), V(-12.5, -3, 0)), False)
sketch12.addGeometry(Part.LineSegment(V(-12.5, -3, 0), V(-12.5, -6, 0)), False)
sketch12.addGeometry(Part.LineSegment(V(-12.5, -6, 0), V(12.5, -6, 0)), False)
sketch12.addGeometry(Part.LineSegment(V(12.5, -6, 0), V(12.5, -3, 0)), False)
sketch12.addGeometry(Part.LineSegment(V(12.5, -3, 0), V(10, -3, 0)), False)
sketch12.addGeometry(Part.LineSegment(V(10, -3, 0), V(10, 0, 0)), False)
sketch12.addGeometry(Part.LineSegment(V(10, 0, 0), V(-10, 0, 0)), False)
sketch12.addConstraint(Sketcher.Constraint("Coincident", 0, 2, 1, 1))
sketch12.addConstraint(Sketcher.Constraint("Coincident", 1, 2, 2, 1))
sketch12.addConstraint(Sketcher.Constraint("Coincident", 2, 2, 3, 1))
sketch12.addConstraint(Sketcher.Constraint("Coincident", 3, 2, 4, 1))
sketch12.addConstraint(Sketcher.Constraint("Coincident", 4, 2, 5, 1))
sketch12.addConstraint(Sketcher.Constraint("Coincident", 5, 2, 6, 1))
sketch12.addConstraint(Sketcher.Constraint("Coincident", 6, 2, 7, 1))
sketch12.addConstraint(Sketcher.Constraint("Coincident", 7, 2, 0, 1))
sketch12.addConstraint(Sketcher.Constraint("Vertical", 0))
sketch12.addConstraint(Sketcher.Constraint("Horizontal", 1))
sketch12.addConstraint(Sketcher.Constraint("Vertical", 2))
sketch12.addConstraint(Sketcher.Constraint("Horizontal", 3))
sketch12.addConstraint(Sketcher.Constraint("Vertical", 4))
sketch12.addConstraint(Sketcher.Constraint("Horizontal", 5))
sketch12.addConstraint(Sketcher.Constraint("Vertical", 6))
sketch12.addConstraint(Sketcher.Constraint("Horizontal", 7))
sketch12.addConstraint(Sketcher.Constraint("Symmetric", 6, 2, 7, 2, -1, 1))
sketch12.addConstraint(Sketcher.Constraint("Symmetric", 1, 2, 4, 2, -2))
sketch12.addConstraint(Sketcher.Constraint("Equal", 0, 2))
sketch12.addConstraint(Sketcher.Constraint("DistanceX", 3, 1, 3, 2, Q("25 mm")))
sketch12.addConstraint(Sketcher.Constraint("DistanceX", 7, 2, 7, 1, Q("20 mm")))
sketch12.addConstraint(Sketcher.Constraint("DistanceY", 0, 2, 0, 1, Q("3 mm")))
pocket9 = doc.addObject("PartDesign::Pocket", "Pocket008")
body.addObject(pocket9)
pocket9.Profile = sketch12
pocket9.Length = 20

sketch13 = doc.addObject("Sketcher::SketchObject", "Sketch012")
body.addObject(sketch13)
sketch13.AttachmentSupport = (doc.XY_Plane, [""])
sketch13.MapMode = "FlatFace"
sketch13.AttachmentOffset = App.Placement(V(0, 0, -6), App.Rotation())
sketch13.addGeometry(Part.Circle(V(0, -44, 0), V(0, 0, 1), 1.5), False)
sketch13.addConstraint(Sketcher.Constraint("PointOnObject", 0, 3, -2))
sketch13.addConstraint(Sketcher.Constraint("Diameter", 0, Q("3 mm")))
sketch13.addConstraint(Sketcher.Constraint("DistanceY", 0, 3, -1, 1, Q("44 mm")))
pocket10 = doc.addObject("PartDesign::Pocket", "Pocket009")
body.addObject(pocket10)
pocket10.Profile = sketch13
pocket10.Length = 4

sketch14 = doc.addObject("Sketcher::SketchObject", "Sketch013")
body.addObject(sketch14)
sketch14.AttachmentSupport = (doc.XZ_Plane, [""])
sketch14.MapMode = "FlatFace"
sketch14.AttachmentOffset = App.Placement(V(0, 0, 25), App.Rotation())
sketch14.addGeometry(Part.Circle(V(-9.8, -5.1, 0), V(0, 0, 1), 3), False)
sketch14.addConstraint(Sketcher.Constraint("Diameter", 0, Q("6 mm")))
sketch14.addConstraint(Sketcher.Constraint("DistanceY", 0, 3, -1, 1, Q("5.1 mm")))
sketch14.addConstraint(Sketcher.Constraint("DistanceX", 0, 3, -1, 1, Q("9.84924 mm")))
pocket11 = doc.addObject("PartDesign::Pocket", "Pocket010")
body.addObject(pocket11)
pocket11.Profile = sketch14
pocket11.Type = "ThroughAll"
pocket11.Reversed = True

doc.recompute()
